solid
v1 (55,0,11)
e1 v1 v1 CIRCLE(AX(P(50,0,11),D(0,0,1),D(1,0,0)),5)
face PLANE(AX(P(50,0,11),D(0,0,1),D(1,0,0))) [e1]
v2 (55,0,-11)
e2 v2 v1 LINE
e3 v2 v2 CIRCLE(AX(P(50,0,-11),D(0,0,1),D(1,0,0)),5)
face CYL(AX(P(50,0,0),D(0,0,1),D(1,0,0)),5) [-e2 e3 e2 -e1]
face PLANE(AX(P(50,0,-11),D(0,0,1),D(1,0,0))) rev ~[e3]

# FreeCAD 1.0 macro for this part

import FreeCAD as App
import Part
import Sketcher
Q = App.Units.Quantity

doc = App.newDocument("Part")
params = doc.addObject("Spreadsheet::Sheet", "Params")
for row, (alias, value) in enumerate([
    ("sketch1_diameter", "10 mm"),
    ("pad1_length", "22 mm"),
], start=1):
    params.set(f"A{row}", alias)
    params.set(f"B{row}", "=" + value)
    params.setAlias(f"B{row}", alias)

body = doc.addObject("PartDesign::Body", "Body")

sketch1 = body.newObject("Sketcher::SketchObject", "Sketch")
sketch1.AttachmentSupport = (doc.getObject("XY_Plane"), [""])
sketch1.MapMode = "FlatFace"
sketch1.addGeometry(Part.Circle(App.Vector(50, 0, 0), App.Vector(0, 0, 1), 5), False)
sketch1.addConstraint([
    Sketcher.Constraint("PointOnObject", 0, 3, -1),
    Sketcher.Constraint("Diameter", 0, Q("10 mm")),
    Sketcher.Constraint("DistanceX", -1, 1, 0, 3, Q("50 mm")),
])
sketch1.setExpression("Constraints[1]", "Params.sketch1_diameter")
pad1 = body.newObject("PartDesign::Pad", "Pad")
pad1.Profile = sketch1
pad1.setExpression("Length", "Params.pad1_length")
pad1.Midplane = True

doc.recompute()
